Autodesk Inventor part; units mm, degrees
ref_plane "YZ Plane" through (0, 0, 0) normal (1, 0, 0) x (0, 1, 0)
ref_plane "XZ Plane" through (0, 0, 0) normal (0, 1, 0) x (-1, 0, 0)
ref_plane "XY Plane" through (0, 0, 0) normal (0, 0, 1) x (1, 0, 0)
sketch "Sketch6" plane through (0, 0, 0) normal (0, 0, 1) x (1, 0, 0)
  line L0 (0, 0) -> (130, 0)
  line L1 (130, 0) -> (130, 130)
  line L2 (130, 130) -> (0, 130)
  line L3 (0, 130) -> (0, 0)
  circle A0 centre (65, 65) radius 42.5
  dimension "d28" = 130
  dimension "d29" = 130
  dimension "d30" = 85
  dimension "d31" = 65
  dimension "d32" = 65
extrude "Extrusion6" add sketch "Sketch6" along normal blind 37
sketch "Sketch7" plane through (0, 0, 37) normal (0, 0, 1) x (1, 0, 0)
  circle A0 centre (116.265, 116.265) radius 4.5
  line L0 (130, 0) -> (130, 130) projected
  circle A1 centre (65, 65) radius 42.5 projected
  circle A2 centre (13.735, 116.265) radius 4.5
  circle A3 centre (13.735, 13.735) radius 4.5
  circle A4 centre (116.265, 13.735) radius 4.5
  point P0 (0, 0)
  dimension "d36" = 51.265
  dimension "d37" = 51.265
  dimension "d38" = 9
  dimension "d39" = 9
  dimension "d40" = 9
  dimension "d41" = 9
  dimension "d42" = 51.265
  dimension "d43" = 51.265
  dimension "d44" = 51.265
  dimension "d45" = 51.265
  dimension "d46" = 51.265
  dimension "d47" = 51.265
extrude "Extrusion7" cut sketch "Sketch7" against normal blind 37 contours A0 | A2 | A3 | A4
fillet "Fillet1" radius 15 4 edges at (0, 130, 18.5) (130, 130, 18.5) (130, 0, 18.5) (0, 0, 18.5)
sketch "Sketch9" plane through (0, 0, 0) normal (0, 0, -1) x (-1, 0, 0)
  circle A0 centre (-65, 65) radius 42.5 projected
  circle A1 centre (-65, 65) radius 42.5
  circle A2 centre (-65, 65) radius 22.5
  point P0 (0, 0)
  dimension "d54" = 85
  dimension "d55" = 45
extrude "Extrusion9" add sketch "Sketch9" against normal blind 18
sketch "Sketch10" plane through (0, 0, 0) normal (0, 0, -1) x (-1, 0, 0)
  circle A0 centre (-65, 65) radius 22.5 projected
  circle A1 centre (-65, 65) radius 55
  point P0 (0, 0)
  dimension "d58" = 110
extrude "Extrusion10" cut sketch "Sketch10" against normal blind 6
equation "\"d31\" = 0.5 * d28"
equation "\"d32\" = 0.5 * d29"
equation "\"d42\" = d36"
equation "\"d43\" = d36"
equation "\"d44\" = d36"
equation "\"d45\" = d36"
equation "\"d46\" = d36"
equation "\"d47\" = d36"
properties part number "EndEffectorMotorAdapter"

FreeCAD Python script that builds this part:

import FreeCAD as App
import Part
import Sketcher
from FreeCAD import Vector
Q = App.Units.Quantity


def edges_at(feature, points):
    """Names of the edges that pass closest to the given points."""
    edges = feature.Shape.Edges
    near = lambda p: min(range(len(edges)), key=lambda i: edges[i].distToShape(Part.Vertex(*p))[0])
    return sorted({f"Edge{near(p) + 1}" for p in points})


def add_polygon(sketch, points):
    """Adds a closed chain of lines whose ends are joined by coincident constraints."""
    first, n = sketch.GeometryCount, len(points)
    for a, b in zip(points, points[1:] + points[:1]):
        sketch.addGeometry(Part.LineSegment(App.Vector(*a, 0), App.Vector(*b, 0)), False)
    for i in range(n):
        sketch.addConstraint(Sketcher.Constraint("Coincident", first + i, 2, first + (i + 1) % n, 1))

doc = App.newDocument("Part")
params = doc.addObject("Spreadsheet::Sheet", "Params")
for row, (alias, value) in enumerate([
    ("sketch1_diameter", "85 mm"),
    ("sketch1_width", "130 mm"),
    ("pad1_length", "37 mm"),
    ("sketch2_diameter", "9 mm"),
    ("pocket1_length", "37 mm"),
    ("fillet_radius", "15 mm"),
    ("sketch3_diameter", "85 mm"),
    ("sketch3_diameter2", "45 mm"),
    ("pad2_length", "18 mm"),
    ("sketch4_diameter", "110 mm"),
    ("sketch4_diameter2", "45 mm"),
    ("pocket2_length", "6 mm"),
], start=1):
    params.set(f"A{row}", alias)
    params.set(f"B{row}", "=" + value)
    params.setAlias(f"B{row}", alias)

body = doc.addObject("PartDesign::Body", "Body")

sketch1 = body.newObject("Sketcher::SketchObject", "Sketch")
sketch1.AttachmentSupport = (doc.getObject("XY_Plane"), [""])
sketch1.MapMode = "FlatFace"
add_polygon(sketch1, [(0, 130), (0, 0), (130, 0), (130, 130)])
sketch1.addGeometry(Part.Circle(Vector(65, 65, 0), Vector(0, 0, 1), 42), False)
sketch1.addConstraint([
    Sketcher.Constraint("Vertical", 0),
    Sketcher.Constraint("Horizontal", 1),
    Sketcher.Constraint("Vertical", 2),
    Sketcher.Constraint("Horizontal", 3),
    Sketcher.Constraint("Coincident", 0, 2, -1, 1),
    Sketcher.Constraint("Equal", 3, 0),
    Sketcher.Constraint("Diameter", 4, Q("85 mm")),
    Sketcher.Constraint("DistanceX", 1, 1, 1, 2, Q("130 mm")),
    Sketcher.Constraint("DistanceX", -1, 1, 4, 3, Q("65 mm")),
    Sketcher.Constraint("DistanceY", -1, 1, 4, 3, Q("65 mm")),
])
sketch1.setExpression("Constraints[10]", "Params.sketch1_diameter")
sketch1.setExpression("Constraints[11]", "Params.sketch1_width")
pad1 = body.newObject("PartDesign::Pad", "Pad")
pad1.Profile = sketch1
pad1.setExpression("Length", "Params.pad1_length")

sketch2 = body.newObject("Sketcher::SketchObject", "Sketch001")
sketch2.AttachmentSupport = (doc.getObject("XY_Plane"), [""])
sketch2.MapMode = "FlatFace"
sketch2.AttachmentOffset = App.Placement(Vector(0, 0, 37), App.Rotation())
sketch2.addGeometry([
    Part.Circle(Vector(116.3, 116.3, 0), Vector(0, 0, 1), 4.5),
    Part.Circle(Vector(13.7, 116.3, 0), Vector(0, 0, 1), 4.5),
    Part.Circle(Vector(13.7, 13.7, 0), Vector(0, 0, 1), 4.5),
    Part.Circle(Vector(116.3, 13.7, 0), Vector(0, 0, 1), 4.5),
], False)
sketch2.addConstraint([
    Sketcher.Constraint("Equal", 0, 1),
    Sketcher.Constraint("Equal", 1, 2),
    Sketcher.Constraint("Equal", 2, 3),
    Sketcher.Constraint("Horizontal", 0, 3, 1, 3),
    Sketcher.Constraint("Horizontal", 2, 3, 3, 3),
    Sketcher.Constraint("Vertical", 1, 3, 2, 3),
    Sketcher.Constraint("Vertical", 0, 3, 3, 3),
    Sketcher.Constraint("Diameter", 0, Q("9 mm")),
    Sketcher.Constraint("DistanceX", 1, 3, 0, 3, Q("102.53 mm")),
    Sketcher.Constraint("DistanceY", 2, 3, 1, 3, Q("102.53 mm")),
    Sketcher.Constraint("DistanceX", -1, 1, 0, 3, Q("116.265 mm")),
    Sketcher.Constraint("DistanceY", -1, 1, 0, 3, Q("116.265 mm")),
])
sketch2.setExpression("Constraints[7]", "Params.sketch2_diameter")
pocket1 = body.newObject("PartDesign::Pocket", "Pocket")
pocket1.Profile = sketch2
pocket1.setExpression("Length", "Params.pocket1_length")
doc.recompute()

fillet = body.newObject("PartDesign::Fillet", "Fillet")
fillet.Base = (pocket1, edges_at(pocket1, [
    (0, 130, 18.5),
    (130, 130, 18.5),
    (130, 0, 18.5),
    (0, 0, 18.5),
]))
fillet.setExpression("Radius", "Params.fillet_radius")

sketch3 = body.newObject("Sketcher::SketchObject", "Sketch002")
sketch3.AttachmentSupport = (doc.getObject("XY_Plane"), [""])
sketch3.MapMode = "FlatFace"
sketch3.addGeometry([
    Part.Circle(Vector(65, 65, 0), Vector(0, 0, 1), 42),
    Part.Circle(Vector(65, 65, 0), Vector(0, 0, 1), 22),
], False)
sketch3.addConstraint([
    Sketcher.Constraint("Coincident", 1, 3, 0, 3),
    Sketcher.Constraint("Diameter", 0, Q("85 mm")),
    Sketcher.Constraint("Diameter", 1, Q("45 mm")),
    Sketcher.Constraint("DistanceX", -1, 1, 0, 3, Q("65 mm")),
    Sketcher.Constraint("DistanceY", -1, 1, 0, 3, Q("65 mm")),
])
sketch3.setExpression("Constraints[1]", "Params.sketch3_diameter")
sketch3.setExpression("Constraints[2]", "Params.sketch3_diameter2")
pad2 = body.newObject("PartDesign::Pad", "Pad001")
pad2.Profile = sketch3
pad2.setExpression("Length", "Params.pad2_length")

sketch4 = body.newObject("Sketcher::SketchObject", "Sketch003")
sketch4.AttachmentSupport = (doc.getObject("XY_Plane"), [""])
sketch4.MapMode = "FlatFace"
sketch4.addGeometry([
    Part.Circle(Vector(65, 65, 0), Vector(0, 0, 1), 55),
    Part.Circle(Vector(65, 65, 0), Vector(0, 0, 1), 22),
], False)
sketch4.addConstraint([
    Sketcher.Constraint("Coincident", 1, 3, 0, 3),
    Sketcher.Constraint("Diameter", 0, Q("110 mm")),
    Sketcher.Constraint("Diameter", 1, Q("45 mm")),
    Sketcher.Constraint("DistanceX", -1, 1, 0, 3, Q("65 mm")),
    Sketcher.Constraint("DistanceY", -1, 1, 0, 3, Q("65 mm")),
])
sketch4.setExpression("Constraints[1]", "Params.sketch4_diameter")
sketch4.setExpression("Constraints[2]", "Params.sketch4_diameter2")
pocket2 = body.newObject("PartDesign::Pocket", "Pocket001")
pocket2.Profile = sketch4
pocket2.setExpression("Length", "Params.pocket2_length")
pocket2.Reversed = True

doc.recompute()
